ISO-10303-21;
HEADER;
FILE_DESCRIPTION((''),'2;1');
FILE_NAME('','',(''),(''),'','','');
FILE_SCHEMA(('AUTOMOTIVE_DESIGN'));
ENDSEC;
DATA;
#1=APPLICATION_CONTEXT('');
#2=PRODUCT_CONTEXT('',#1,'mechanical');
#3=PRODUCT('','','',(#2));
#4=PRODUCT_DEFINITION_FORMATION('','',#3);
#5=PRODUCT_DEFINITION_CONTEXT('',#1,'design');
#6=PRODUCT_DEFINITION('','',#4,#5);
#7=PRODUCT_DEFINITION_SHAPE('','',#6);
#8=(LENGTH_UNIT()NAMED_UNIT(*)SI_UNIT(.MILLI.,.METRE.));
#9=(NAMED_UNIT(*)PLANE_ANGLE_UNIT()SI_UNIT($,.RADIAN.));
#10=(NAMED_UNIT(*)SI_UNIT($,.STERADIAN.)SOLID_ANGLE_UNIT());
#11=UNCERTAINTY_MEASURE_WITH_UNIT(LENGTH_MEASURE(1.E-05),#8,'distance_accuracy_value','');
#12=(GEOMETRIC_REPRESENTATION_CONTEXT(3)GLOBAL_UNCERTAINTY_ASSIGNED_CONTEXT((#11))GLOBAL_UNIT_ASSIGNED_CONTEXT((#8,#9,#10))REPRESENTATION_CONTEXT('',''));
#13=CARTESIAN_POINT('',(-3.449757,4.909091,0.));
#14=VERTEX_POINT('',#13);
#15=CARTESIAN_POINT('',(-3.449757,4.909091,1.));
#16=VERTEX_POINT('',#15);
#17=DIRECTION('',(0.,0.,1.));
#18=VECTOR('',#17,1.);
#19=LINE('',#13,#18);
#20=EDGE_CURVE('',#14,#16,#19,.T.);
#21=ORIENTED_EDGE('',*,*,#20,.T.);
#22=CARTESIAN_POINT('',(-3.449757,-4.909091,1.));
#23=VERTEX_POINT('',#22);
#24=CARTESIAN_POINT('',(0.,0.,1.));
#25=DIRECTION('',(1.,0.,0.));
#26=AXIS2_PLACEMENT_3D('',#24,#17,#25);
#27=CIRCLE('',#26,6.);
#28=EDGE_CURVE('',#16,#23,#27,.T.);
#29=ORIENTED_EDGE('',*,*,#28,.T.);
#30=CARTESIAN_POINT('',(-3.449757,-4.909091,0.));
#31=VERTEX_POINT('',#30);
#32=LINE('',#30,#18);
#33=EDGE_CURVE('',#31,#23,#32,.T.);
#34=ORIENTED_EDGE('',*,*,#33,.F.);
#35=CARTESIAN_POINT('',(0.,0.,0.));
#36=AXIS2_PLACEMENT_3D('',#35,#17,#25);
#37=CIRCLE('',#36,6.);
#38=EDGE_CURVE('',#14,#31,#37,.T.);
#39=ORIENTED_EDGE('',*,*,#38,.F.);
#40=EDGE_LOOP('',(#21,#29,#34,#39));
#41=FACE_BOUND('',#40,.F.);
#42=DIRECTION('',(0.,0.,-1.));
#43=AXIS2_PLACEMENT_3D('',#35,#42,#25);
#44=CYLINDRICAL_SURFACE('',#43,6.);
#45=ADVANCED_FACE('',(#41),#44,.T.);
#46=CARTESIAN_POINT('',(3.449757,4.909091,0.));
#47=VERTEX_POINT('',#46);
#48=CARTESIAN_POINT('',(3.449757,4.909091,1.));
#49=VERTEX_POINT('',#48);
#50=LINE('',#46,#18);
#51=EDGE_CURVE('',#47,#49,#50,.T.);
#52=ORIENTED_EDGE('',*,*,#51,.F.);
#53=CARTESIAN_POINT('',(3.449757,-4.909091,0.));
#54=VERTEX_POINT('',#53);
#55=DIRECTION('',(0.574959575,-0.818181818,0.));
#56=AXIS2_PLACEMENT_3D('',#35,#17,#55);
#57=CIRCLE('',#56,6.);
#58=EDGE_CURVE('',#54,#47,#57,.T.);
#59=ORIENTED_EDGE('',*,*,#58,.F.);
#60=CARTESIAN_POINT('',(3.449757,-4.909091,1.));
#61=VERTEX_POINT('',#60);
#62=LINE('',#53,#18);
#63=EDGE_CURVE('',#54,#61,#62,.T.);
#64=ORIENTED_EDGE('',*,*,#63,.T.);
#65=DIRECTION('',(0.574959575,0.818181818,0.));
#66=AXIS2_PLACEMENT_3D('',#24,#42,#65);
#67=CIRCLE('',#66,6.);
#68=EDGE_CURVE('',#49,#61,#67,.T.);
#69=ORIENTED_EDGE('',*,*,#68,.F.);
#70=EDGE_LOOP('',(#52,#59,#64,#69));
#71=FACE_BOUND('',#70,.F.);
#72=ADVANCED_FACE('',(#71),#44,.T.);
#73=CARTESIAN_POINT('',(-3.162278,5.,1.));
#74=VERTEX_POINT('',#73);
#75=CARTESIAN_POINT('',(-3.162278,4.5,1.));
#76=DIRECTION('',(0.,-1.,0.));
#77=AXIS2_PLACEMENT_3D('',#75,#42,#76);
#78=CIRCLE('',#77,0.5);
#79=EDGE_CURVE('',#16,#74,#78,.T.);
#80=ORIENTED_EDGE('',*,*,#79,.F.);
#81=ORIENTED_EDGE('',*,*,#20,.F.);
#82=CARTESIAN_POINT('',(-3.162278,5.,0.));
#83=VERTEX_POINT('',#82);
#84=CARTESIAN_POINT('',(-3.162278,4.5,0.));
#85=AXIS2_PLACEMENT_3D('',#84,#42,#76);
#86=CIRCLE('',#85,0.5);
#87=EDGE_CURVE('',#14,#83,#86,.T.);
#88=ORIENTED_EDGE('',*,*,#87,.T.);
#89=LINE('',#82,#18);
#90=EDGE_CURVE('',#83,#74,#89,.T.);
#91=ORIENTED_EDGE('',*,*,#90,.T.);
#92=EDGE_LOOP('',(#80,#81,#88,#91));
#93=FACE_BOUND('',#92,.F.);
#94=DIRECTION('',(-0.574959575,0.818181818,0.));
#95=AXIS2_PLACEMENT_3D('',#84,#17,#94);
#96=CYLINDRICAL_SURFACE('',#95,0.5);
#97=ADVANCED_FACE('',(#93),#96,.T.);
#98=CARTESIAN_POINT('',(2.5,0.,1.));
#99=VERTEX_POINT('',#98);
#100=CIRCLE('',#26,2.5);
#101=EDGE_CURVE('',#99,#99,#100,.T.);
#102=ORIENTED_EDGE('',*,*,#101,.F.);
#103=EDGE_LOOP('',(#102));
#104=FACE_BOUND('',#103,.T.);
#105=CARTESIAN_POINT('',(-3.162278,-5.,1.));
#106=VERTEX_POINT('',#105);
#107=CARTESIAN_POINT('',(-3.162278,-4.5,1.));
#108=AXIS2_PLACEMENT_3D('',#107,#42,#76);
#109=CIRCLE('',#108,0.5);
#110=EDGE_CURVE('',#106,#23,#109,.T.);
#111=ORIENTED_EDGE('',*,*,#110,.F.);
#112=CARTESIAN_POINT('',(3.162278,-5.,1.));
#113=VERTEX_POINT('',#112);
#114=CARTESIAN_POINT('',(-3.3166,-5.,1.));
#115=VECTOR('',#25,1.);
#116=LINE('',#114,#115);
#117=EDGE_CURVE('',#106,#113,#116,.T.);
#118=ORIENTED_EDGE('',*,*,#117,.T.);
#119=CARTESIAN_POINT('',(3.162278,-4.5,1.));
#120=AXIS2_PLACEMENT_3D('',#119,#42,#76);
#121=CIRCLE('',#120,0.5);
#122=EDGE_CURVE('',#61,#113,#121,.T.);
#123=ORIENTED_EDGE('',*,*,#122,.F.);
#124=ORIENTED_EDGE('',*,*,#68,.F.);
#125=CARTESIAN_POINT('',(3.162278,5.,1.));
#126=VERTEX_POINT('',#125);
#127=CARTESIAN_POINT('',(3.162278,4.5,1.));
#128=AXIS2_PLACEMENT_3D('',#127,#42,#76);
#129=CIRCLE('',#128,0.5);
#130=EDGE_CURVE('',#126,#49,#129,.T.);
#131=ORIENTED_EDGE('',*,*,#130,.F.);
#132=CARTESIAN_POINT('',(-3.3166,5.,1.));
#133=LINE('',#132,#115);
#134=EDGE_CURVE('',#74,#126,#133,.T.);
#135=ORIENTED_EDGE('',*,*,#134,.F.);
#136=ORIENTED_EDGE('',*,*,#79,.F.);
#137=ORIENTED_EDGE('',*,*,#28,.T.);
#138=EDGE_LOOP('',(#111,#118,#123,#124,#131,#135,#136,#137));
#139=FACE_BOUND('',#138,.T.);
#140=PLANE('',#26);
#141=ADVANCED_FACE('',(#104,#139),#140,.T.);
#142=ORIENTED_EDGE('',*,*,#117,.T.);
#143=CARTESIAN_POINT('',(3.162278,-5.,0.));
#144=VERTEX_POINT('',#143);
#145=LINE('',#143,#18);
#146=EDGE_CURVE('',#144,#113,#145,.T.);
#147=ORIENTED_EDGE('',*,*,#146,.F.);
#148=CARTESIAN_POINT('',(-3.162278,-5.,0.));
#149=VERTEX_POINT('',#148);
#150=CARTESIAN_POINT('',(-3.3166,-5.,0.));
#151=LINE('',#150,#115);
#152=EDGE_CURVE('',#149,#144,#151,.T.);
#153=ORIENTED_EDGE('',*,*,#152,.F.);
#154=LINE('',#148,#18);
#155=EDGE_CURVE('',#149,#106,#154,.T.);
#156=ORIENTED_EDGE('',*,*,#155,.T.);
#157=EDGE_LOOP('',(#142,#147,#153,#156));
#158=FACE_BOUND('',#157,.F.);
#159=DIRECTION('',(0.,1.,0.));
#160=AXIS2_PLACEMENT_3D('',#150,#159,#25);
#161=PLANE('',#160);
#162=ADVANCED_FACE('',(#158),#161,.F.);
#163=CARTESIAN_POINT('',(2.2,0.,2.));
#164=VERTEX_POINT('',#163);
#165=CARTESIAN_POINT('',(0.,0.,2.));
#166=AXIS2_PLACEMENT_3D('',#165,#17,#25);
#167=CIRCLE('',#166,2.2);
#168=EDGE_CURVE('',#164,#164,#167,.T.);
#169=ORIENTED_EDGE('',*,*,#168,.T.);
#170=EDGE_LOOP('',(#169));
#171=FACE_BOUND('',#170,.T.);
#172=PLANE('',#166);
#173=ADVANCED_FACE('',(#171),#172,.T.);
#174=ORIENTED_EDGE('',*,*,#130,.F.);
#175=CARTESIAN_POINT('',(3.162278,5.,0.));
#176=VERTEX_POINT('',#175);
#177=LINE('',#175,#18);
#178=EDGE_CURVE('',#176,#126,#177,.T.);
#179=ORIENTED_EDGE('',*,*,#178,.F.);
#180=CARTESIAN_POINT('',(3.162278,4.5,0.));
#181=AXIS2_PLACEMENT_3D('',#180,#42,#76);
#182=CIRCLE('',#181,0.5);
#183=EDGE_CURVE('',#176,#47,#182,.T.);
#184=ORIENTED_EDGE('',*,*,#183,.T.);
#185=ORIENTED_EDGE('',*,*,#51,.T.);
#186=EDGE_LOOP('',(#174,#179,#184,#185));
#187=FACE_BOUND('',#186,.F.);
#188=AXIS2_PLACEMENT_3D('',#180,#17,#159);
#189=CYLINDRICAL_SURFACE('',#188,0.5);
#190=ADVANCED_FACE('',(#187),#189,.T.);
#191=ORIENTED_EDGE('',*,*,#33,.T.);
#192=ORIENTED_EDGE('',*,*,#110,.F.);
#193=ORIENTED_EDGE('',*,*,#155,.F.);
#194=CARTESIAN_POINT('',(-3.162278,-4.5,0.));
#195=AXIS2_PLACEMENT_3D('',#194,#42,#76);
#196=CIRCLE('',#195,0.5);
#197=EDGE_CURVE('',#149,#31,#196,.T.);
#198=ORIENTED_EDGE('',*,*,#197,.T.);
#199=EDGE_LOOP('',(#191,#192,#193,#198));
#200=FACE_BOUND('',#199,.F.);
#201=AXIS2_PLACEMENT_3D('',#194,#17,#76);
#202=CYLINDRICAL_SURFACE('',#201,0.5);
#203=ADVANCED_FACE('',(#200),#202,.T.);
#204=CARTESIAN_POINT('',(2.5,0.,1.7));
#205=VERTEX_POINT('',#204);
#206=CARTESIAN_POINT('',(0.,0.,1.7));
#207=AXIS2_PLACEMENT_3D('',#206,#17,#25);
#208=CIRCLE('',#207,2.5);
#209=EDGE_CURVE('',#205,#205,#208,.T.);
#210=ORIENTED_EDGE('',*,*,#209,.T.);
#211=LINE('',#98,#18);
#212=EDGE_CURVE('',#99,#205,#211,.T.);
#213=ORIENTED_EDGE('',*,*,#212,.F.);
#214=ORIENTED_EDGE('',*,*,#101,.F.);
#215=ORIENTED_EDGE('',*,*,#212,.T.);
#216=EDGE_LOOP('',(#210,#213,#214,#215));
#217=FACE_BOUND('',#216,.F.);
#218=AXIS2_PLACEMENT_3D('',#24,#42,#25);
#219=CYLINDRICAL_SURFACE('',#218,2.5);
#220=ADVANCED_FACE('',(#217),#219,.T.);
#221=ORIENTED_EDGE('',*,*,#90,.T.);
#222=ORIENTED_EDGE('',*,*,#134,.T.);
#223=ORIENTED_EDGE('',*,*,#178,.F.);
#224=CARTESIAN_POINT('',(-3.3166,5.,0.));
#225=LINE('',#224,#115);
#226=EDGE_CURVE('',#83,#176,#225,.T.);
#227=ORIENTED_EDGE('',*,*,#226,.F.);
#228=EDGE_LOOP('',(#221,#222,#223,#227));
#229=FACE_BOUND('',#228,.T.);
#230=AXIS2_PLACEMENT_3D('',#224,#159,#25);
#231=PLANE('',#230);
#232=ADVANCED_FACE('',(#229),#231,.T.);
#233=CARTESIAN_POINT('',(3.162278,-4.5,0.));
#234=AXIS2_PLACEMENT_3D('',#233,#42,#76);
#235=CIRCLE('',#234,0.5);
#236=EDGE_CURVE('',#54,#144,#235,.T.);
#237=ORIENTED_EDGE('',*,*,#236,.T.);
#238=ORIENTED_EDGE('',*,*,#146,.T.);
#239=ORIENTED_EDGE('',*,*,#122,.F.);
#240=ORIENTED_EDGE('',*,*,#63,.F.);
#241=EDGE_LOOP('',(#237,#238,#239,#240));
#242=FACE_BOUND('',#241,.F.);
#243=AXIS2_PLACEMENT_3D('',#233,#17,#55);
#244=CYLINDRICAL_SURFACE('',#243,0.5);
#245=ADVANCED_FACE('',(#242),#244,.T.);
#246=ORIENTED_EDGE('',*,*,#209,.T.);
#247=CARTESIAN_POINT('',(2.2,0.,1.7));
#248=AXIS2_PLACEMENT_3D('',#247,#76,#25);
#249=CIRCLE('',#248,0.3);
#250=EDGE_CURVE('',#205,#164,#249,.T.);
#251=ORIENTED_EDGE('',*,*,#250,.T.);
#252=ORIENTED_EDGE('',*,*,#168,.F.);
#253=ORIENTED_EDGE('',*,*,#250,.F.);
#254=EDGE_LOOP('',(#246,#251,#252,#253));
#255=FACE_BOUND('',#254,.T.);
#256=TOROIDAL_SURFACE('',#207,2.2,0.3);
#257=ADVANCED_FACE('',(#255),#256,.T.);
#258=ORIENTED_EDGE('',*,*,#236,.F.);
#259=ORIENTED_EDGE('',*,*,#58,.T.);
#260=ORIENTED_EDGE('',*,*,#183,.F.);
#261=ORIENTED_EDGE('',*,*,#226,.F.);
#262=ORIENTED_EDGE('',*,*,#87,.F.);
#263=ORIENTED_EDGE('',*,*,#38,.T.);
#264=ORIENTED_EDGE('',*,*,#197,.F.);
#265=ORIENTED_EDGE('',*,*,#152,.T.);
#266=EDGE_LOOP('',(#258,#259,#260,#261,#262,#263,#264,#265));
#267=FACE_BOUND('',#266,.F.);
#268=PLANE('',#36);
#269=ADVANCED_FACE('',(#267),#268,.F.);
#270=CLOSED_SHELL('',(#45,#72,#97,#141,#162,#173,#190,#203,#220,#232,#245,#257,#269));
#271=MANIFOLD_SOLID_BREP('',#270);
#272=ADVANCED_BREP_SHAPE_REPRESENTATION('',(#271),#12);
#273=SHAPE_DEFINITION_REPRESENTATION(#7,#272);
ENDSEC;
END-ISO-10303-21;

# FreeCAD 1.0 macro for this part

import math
import FreeCAD as App
import Part
import Sketcher

V = App.Vector
Q = App.Units.Quantity


def edges_at(feature, points):
    """Names of the edges that pass closest to the given points."""
    edges = feature.Shape.Edges
    near = lambda p: min(range(len(edges)), key=lambda i: edges[i].distToShape(Part.Vertex(*p))[0])
    return sorted({f"Edge{near(p) + 1}" for p in points})

doc = App.newDocument("Part")
body = doc.addObject("PartDesign::Body", "Body")

# Sketch on XY plane
sketch1 = doc.addObject("Sketcher::SketchObject", "Sketch")
body.addObject(sketch1)
sketch1.AttachmentSupport = (doc.XY_Plane, [""])
sketch1.MapMode = "FlatFace"
sketch1.addGeometry([
    Part.ArcOfCircle(Part.Circle(V(0, 0, 0), V(0, 0, 1), 6), math.radians(-56.442888), math.radians(56.442888)),
    Part.LineSegment(V(3.3166, 5, 0), V(-3.3166, 5, 0)),
    Part.ArcOfCircle(Part.Circle(V(0, 0, 0), V(0, 0, 1), 6), math.radians(123.557112), math.radians(236.442888)),
    Part.LineSegment(V(-3.3166, -5, 0), V(3.3166, -5, 0)),
], False)
sketch1.addConstraint([
    Sketcher.Constraint("Coincident", 0, 2, 1, 1),
    Sketcher.Constraint("Coincident", 1, 2, 2, 1),
    Sketcher.Constraint("Coincident", 2, 2, 3, 1),
    Sketcher.Constraint("Coincident", 3, 2, 0, 1),
    Sketcher.Constraint("Horizontal", 1),
    Sketcher.Constraint("Horizontal", 3),
    Sketcher.Constraint("Coincident", 0, 3, -1, 1),
    Sketcher.Constraint("Coincident", 2, 3, -1, 1),
    Sketcher.Constraint("Equal", 0, 2),
    Sketcher.Constraint("Vertical", 1, 2, 2, 2),
    Sketcher.Constraint("Radius", 0, Q("6 mm")),
    Sketcher.Constraint("DistanceY", -1, 1, 0, 2, Q("5 mm")),
])
pad1 = doc.addObject("PartDesign::Pad", "Pad")
body.addObject(pad1)
pad1.Profile = sketch1
pad1.Length = 1
doc.recompute()

fillet = doc.addObject("PartDesign::Fillet", "Fillet")
body.addObject(fillet)
fillet.Base = (pad1, edges_at(pad1, [
    (-3.317, 5, 0.5),
    (3.317, 5, 0.5),
    (-3.317, -5, 0.5),
    (3.317, -5, 0.5),
]))
fillet.Radius = 0.5

# Sketch on XY plane
sketch2 = doc.addObject("Sketcher::SketchObject", "Sketch001")
body.addObject(sketch2)
sketch2.AttachmentSupport = (doc.XY_Plane, [""])
sketch2.MapMode = "FlatFace"
sketch2.AttachmentOffset = App.Placement(V(0, 0, 1), App.Rotation())
sketch2.addGeometry(Part.Circle(V(0, 0, 0), V(0, 0, 1), 2.5), False)
sketch2.addConstraint([
    Sketcher.Constraint("Coincident", 0, 3, -1, 1),
    Sketcher.Constraint("Diameter", 0, Q("5 mm")),
])
pad2 = doc.addObject("PartDesign::Pad", "Pad001")
body.addObject(pad2)
pad2.Profile = sketch2
pad2.Length = 1
doc.recompute()

fillet2 = doc.addObject("PartDesign::Fillet", "Fillet001")
body.addObject(fillet2)
fillet2.Base = (pad2, edges_at(pad2, [(-2.5, 0, 2)]))
fillet2.Radius = 0.3

doc.recompute()
